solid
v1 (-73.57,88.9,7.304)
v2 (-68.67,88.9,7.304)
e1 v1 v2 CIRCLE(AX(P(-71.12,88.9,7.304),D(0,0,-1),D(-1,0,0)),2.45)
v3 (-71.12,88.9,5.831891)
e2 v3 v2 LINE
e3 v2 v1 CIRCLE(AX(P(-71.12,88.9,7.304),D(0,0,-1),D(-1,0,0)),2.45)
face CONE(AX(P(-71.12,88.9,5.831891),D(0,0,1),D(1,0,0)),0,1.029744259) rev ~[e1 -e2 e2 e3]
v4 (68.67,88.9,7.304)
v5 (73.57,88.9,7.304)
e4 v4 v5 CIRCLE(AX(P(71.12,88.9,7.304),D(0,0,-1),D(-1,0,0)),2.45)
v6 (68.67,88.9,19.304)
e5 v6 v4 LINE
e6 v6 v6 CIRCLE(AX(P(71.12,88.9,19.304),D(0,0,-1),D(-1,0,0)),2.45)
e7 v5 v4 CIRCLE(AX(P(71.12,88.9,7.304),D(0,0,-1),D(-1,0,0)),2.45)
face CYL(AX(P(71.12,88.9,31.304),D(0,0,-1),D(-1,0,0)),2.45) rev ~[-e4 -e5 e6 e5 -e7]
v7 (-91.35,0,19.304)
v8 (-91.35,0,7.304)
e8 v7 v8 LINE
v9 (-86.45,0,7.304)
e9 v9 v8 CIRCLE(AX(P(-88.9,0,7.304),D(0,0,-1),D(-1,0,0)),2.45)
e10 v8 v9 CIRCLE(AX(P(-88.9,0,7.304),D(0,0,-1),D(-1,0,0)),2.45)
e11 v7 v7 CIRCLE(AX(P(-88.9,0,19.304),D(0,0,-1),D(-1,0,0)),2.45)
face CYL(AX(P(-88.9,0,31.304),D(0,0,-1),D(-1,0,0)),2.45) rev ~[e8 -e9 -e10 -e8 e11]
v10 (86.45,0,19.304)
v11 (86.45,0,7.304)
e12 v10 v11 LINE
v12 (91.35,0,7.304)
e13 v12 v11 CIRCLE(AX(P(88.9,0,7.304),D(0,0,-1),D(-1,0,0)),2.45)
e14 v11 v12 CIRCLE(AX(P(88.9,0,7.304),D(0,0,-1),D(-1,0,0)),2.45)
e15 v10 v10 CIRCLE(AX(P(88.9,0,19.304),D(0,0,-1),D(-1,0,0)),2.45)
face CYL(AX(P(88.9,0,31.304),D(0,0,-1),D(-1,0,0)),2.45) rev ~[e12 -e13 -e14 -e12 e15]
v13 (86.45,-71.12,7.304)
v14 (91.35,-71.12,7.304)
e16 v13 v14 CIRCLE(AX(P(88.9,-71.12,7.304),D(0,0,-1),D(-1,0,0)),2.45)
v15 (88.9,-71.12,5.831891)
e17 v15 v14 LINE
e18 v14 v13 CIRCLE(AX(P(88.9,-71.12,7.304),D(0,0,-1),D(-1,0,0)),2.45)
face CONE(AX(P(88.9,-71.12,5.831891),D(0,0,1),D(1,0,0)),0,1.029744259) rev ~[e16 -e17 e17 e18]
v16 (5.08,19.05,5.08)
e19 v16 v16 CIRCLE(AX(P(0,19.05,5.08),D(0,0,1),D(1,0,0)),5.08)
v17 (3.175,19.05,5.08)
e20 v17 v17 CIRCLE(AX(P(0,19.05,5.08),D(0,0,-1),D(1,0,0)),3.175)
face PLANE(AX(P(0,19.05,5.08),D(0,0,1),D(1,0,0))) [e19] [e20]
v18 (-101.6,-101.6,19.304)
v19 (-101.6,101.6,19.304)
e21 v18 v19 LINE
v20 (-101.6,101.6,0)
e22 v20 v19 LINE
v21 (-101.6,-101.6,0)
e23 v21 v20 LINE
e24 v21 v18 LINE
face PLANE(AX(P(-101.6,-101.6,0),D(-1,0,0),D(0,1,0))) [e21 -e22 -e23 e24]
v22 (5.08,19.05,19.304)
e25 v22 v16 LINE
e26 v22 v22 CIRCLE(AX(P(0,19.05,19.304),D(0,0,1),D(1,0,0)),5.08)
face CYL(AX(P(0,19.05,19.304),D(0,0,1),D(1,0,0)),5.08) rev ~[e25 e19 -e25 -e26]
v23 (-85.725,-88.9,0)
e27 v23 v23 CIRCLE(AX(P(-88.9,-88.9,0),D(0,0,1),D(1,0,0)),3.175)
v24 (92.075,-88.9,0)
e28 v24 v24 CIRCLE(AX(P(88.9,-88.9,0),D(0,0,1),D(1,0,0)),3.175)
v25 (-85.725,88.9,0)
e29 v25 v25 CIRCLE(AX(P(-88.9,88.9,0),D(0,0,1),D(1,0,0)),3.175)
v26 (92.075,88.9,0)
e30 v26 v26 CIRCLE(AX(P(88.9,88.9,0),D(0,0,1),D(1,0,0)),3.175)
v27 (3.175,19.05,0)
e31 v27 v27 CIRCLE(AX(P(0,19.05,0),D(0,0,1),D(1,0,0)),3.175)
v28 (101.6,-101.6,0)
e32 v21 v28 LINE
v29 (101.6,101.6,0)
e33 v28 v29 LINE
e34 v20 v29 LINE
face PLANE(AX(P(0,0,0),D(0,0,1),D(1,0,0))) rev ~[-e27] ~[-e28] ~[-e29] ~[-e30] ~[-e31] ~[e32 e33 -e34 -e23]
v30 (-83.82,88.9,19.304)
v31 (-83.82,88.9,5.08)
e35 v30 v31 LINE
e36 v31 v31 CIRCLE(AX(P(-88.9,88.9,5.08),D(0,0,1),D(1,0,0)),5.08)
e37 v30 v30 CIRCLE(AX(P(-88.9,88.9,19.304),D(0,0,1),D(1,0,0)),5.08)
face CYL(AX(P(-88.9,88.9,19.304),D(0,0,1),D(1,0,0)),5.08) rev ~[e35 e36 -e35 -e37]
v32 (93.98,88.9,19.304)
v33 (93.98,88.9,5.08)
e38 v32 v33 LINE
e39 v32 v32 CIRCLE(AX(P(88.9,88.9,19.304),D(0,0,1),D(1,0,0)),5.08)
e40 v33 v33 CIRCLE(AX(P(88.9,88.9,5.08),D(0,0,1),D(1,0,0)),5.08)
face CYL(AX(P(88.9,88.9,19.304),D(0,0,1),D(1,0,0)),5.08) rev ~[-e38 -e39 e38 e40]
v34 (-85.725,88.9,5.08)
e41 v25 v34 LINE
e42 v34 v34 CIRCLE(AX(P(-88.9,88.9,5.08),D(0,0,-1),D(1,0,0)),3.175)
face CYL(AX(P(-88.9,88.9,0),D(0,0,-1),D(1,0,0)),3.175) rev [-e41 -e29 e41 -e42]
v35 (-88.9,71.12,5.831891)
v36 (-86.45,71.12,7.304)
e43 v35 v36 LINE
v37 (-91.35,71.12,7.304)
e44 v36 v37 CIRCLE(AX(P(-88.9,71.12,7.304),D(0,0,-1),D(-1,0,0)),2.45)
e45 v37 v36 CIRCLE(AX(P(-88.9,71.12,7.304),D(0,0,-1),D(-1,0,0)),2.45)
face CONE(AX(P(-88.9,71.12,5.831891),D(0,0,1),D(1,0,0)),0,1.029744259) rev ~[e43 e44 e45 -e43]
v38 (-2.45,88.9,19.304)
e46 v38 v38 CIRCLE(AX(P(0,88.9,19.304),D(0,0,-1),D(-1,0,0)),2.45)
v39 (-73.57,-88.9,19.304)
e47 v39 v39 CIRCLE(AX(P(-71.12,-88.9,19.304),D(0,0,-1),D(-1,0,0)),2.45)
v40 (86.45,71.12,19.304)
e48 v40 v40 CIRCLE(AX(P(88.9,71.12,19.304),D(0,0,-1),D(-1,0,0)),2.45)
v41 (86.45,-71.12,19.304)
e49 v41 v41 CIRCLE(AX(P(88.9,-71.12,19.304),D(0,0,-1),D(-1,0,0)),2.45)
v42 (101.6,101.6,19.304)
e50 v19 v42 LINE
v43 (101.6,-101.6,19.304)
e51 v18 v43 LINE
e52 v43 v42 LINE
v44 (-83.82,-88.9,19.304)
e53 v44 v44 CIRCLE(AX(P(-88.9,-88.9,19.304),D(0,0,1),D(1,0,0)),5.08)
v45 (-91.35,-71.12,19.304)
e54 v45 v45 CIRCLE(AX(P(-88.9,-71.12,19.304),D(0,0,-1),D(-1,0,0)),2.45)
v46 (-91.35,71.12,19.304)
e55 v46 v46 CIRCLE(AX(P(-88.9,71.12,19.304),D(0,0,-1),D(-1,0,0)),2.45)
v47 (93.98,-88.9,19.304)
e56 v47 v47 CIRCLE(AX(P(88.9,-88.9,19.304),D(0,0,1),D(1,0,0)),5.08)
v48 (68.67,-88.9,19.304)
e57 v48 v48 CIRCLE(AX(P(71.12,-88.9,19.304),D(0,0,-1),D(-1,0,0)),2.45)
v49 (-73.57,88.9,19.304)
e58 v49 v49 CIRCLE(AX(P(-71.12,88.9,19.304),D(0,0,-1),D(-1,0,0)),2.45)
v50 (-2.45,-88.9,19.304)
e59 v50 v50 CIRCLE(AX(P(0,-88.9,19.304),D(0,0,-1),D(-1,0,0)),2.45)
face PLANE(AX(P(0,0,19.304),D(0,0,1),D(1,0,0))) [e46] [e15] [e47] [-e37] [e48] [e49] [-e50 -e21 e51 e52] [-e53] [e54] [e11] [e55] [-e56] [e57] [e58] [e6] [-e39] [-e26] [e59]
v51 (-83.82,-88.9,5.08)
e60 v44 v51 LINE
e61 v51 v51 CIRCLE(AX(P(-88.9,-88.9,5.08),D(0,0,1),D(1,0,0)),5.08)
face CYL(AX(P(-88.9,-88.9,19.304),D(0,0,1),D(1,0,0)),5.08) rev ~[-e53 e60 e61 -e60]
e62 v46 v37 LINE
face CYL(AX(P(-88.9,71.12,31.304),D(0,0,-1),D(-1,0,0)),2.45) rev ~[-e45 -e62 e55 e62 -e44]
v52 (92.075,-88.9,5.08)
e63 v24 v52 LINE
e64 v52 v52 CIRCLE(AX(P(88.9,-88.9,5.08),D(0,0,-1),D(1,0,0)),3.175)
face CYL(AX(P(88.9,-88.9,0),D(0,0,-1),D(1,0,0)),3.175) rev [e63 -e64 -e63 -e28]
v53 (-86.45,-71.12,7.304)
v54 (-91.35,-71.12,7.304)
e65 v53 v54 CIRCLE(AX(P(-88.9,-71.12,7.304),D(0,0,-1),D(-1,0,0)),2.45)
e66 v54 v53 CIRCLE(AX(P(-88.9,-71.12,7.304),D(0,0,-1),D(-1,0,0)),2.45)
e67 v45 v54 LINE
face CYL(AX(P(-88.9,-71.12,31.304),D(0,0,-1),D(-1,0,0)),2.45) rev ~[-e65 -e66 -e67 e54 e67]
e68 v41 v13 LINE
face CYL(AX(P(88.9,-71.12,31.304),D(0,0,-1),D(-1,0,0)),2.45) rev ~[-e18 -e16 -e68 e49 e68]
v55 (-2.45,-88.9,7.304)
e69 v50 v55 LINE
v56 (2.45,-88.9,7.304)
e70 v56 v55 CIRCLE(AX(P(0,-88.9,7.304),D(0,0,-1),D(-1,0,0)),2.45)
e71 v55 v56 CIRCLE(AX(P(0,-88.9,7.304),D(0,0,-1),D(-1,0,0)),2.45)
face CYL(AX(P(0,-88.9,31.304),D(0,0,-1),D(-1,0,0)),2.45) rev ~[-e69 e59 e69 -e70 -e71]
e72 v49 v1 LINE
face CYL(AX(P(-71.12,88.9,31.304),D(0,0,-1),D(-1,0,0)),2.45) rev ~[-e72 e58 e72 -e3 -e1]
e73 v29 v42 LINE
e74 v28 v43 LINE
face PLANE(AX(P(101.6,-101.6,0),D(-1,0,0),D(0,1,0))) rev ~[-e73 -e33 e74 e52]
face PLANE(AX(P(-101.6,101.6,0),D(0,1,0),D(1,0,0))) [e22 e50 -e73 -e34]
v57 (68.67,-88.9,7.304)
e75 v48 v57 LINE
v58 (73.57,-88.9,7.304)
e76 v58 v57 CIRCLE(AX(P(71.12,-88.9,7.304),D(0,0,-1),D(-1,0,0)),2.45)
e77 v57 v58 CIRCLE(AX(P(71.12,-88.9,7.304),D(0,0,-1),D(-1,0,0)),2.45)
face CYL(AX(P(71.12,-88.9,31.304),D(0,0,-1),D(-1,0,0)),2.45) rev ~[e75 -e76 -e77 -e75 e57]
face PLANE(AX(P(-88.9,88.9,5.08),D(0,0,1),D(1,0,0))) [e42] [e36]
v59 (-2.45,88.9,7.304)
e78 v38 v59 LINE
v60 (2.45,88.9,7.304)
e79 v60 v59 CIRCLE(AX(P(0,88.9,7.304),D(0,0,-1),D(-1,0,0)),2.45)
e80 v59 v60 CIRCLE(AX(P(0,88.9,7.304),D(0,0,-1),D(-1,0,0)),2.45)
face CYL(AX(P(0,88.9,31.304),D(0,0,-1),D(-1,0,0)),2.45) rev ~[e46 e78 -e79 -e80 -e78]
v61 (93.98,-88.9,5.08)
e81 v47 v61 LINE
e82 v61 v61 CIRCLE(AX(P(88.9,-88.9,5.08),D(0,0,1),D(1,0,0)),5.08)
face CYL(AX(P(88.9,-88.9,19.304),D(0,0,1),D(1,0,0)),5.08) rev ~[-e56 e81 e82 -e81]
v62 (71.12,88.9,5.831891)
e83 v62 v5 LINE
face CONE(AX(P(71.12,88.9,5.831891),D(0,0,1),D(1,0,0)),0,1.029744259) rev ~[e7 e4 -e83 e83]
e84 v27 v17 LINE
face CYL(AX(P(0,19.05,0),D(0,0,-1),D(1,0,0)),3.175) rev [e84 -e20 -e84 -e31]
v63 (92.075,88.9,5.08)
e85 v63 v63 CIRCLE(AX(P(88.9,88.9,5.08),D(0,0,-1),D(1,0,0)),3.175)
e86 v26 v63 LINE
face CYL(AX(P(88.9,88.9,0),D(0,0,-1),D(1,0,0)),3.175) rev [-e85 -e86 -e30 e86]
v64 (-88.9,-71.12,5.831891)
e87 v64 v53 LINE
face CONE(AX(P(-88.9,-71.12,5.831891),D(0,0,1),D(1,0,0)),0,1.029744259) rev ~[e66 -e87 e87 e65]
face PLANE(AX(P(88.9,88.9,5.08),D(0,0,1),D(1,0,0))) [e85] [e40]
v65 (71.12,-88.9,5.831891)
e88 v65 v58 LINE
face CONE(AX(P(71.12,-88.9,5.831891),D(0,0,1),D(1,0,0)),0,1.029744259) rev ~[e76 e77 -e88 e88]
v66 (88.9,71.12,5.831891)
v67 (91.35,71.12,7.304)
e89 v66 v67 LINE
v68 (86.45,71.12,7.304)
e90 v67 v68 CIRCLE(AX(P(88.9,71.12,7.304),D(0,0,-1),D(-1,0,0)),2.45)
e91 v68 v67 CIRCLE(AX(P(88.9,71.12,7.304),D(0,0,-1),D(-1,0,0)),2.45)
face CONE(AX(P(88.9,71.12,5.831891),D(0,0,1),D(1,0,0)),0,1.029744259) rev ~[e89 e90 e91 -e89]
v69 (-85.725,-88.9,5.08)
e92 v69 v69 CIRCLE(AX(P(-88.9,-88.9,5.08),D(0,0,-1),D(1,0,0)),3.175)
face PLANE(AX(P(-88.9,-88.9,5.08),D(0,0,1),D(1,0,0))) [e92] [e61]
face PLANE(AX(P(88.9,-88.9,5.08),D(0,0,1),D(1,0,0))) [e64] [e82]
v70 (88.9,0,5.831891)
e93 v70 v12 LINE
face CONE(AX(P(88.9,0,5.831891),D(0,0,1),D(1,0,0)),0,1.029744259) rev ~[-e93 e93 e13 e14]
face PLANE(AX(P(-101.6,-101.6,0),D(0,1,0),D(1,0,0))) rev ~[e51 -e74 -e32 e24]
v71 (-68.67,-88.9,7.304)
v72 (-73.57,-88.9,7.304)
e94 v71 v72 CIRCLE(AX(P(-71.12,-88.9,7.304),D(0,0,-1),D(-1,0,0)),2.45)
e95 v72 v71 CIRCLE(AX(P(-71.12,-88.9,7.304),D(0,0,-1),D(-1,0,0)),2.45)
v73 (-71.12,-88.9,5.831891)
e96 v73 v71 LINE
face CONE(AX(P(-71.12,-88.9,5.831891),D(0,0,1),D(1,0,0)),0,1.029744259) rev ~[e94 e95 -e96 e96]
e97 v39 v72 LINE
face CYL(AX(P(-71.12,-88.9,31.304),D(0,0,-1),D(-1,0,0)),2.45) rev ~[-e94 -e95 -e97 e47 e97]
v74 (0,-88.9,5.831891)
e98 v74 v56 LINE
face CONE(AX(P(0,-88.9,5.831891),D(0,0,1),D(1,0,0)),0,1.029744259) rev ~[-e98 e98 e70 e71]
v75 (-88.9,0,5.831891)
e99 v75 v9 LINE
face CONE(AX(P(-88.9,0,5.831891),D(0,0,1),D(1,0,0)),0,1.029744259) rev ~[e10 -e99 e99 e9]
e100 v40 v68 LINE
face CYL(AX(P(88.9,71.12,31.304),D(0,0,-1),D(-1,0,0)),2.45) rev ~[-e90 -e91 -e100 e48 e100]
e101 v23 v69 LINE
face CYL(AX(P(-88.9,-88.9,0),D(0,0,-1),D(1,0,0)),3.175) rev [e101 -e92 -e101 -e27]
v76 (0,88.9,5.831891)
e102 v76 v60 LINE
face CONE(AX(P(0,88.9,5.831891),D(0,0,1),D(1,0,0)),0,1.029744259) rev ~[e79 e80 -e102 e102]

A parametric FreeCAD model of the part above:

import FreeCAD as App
import Part
import Sketcher
from FreeCAD import Vector
Q = App.Units.Quantity

doc = App.newDocument("Part")
params = doc.addObject("Spreadsheet::Sheet", "Params")
for row, (alias, value) in enumerate([
    ("sketch1_diameter", "0.25 in"),
    ("sketch1_width", "8 in"),
    ("pad1_length", "0.76 in"),
    ("sketch2_diameter", "0.4 in"),
    ("pocket1_length", "0.56 in"),
    ("hole_diameter", "4.9 mm"),
    ("hole_depth", "12 mm"),
], start=1):
    params.set(f"A{row}", alias)
    params.set(f"B{row}", "=" + value)
    params.setAlias(f"B{row}", alias)

body = doc.addObject("PartDesign::Body", "Body")

sketch1 = body.newObject("Sketcher::SketchObject", "Sketch")
sketch1.AttachmentSupport = (doc.getObject("XY_Plane"), [""])
sketch1.MapMode = "FlatFace"
sketch1.addGeometry(Part.LineSegment(Vector(-101.6, 101.6, 0), Vector(-101.6, -101.6, 0)), False)
sketch1.addGeometry(Part.LineSegment(Vector(-101.6, -101.6, 0), Vector(101.6, -101.6, 0)), False)
sketch1.addGeometry(Part.LineSegment(Vector(101.6, -101.6, 0), Vector(101.6, 101.6, 0)), False)
sketch1.addGeometry(Part.LineSegment(Vector(101.6, 101.6, 0), Vector(-101.6, 101.6, 0)), False)
sketch1.addGeometry(Part.Circle(Vector(-88.9, -88.9, 0), Vector(0, 0, 1), 3.2), False)
sketch1.addGeometry(Part.Circle(Vector(88.9, -88.9, 0), Vector(0, 0, 1), 3.2), False)
sketch1.addGeometry(Part.Circle(Vector(-88.9, 88.9, 0), Vector(0, 0, 1), 3.2), False)
sketch1.addGeometry(Part.Circle(Vector(0, 19.1, 0), Vector(0, 0, 1), 3.2), False)
sketch1.addGeometry(Part.Circle(Vector(88.9, 88.9, 0), Vector(0, 0, 1), 3.2), False)
sketch1.addConstraint(Sketcher.Constraint("Coincident", 0, 2, 1, 1))
sketch1.addConstraint(Sketcher.Constraint("Coincident", 1, 2, 2, 1))
sketch1.addConstraint(Sketcher.Constraint("Coincident", 2, 2, 3, 1))
sketch1.addConstraint(Sketcher.Constraint("Coincident", 3, 2, 0, 1))
sketch1.addConstraint(Sketcher.Constraint("Vertical", 0))
sketch1.addConstraint(Sketcher.Constraint("Horizontal", 1))
sketch1.addConstraint(Sketcher.Constraint("Vertical", 2))
sketch1.addConstraint(Sketcher.Constraint("Horizontal", 3))
sketch1.addConstraint(Sketcher.Constraint("Equal", 4, 5))
sketch1.addConstraint(Sketcher.Constraint("Equal", 5, 6))
sketch1.addConstraint(Sketcher.Constraint("Equal", 6, 7))
sketch1.addConstraint(Sketcher.Constraint("Equal", 7, 8))
sketch1.addConstraint(Sketcher.Constraint("Symmetric", 5, 3, 6, 3, -1, 1))
sketch1.addConstraint(Sketcher.Constraint("Symmetric", 4, 3, 8, 3, -1, 1))
sketch1.addConstraint(Sketcher.Constraint("Symmetric", 0, 2, 2, 2, -1, 1))
sketch1.addConstraint(Sketcher.Constraint("Symmetric", 4, 3, 5, 3, -2))
sketch1.addConstraint(Sketcher.Constraint("PointOnObject", 7, 3, -2))
sketch1.addConstraint(Sketcher.Constraint("Equal", 3, 0))
sketch1.addConstraint(Sketcher.Constraint("Diameter", 4, Q("0.25 in")))
sketch1.addConstraint(Sketcher.Constraint("DistanceX", 1, 1, 1, 2, Q("8 in")))
sketch1.addConstraint(Sketcher.Constraint("DistanceX", 4, 3, 5, 3, Q("7 in")))
sketch1.addConstraint(Sketcher.Constraint("DistanceY", 4, 3, 6, 3, Q("7 in")))
sketch1.addConstraint(Sketcher.Constraint("DistanceY", -1, 1, 7, 3, Q("0.75 in")))
sketch1.setExpression("Constraints[18]", "Params.sketch1_diameter")
sketch1.setExpression("Constraints[19]", "Params.sketch1_width")
pad1 = body.newObject("PartDesign::Pad", "Pad")
pad1.Profile = sketch1
pad1.setExpression("Length", "Params.pad1_length")

sketch2 = body.newObject("Sketcher::SketchObject", "Sketch001")
sketch2.AttachmentSupport = (doc.getObject("XY_Plane"), [""])
sketch2.MapMode = "FlatFace"
sketch2.AttachmentOffset = App.Placement(Vector(0, 0, 0.76 * 25.4), App.Rotation())
sketch2.addGeometry(Part.Circle(Vector(-89, 89, 0), Vector(0, 0, 1), 5), False)
sketch2.addGeometry(Part.Circle(Vector(0, 19, 0), Vector(0, 0, 1), 5), False)
sketch2.addGeometry(Part.Circle(Vector(89, 89, 0), Vector(0, 0, 1), 5), False)
sketch2.addGeometry(Part.Circle(Vector(-89, -89, 0), Vector(0, 0, 1), 5), False)
sketch2.addGeometry(Part.Circle(Vector(89, -89, 0), Vector(0, 0, 1), 5), False)
sketch2.addConstraint(Sketcher.Constraint("Equal", 0, 1))
sketch2.addConstraint(Sketcher.Constraint("Equal", 1, 2))
sketch2.addConstraint(Sketcher.Constraint("Equal", 2, 3))
sketch2.addConstraint(Sketcher.Constraint("Equal", 3, 4))
sketch2.addConstraint(Sketcher.Constraint("Symmetric", 2, 3, 3, 3, -1, 1))
sketch2.addConstraint(Sketcher.Constraint("Symmetric", 0, 3, 4, 3, -1, 1))
sketch2.addConstraint(Sketcher.Constraint("Symmetric", 0, 3, 2, 3, -2))
sketch2.addConstraint(Sketcher.Constraint("PointOnObject", 1, 3, -2))
sketch2.addConstraint(Sketcher.Constraint("Diameter", 0, Q("0.4 in")))
sketch2.addConstraint(Sketcher.Constraint("DistanceX", 0, 3, 2, 3, Q("7 in")))
sketch2.addConstraint(Sketcher.Constraint("DistanceY", 3, 3, 0, 3, Q("7 in")))
sketch2.addConstraint(Sketcher.Constraint("DistanceY", -1, 1, 1, 3, Q("0.75 in")))
sketch2.setExpression("Constraints[8]", "Params.sketch2_diameter")
pocket1 = body.newObject("PartDesign::Pocket", "Pocket")
pocket1.Profile = sketch2
pocket1.setExpression("Length", "Params.pocket1_length")

sketch3 = body.newObject("Sketcher::SketchObject", "Sketch002")
sketch3.AttachmentSupport = (doc.getObject("XY_Plane"), [""])
sketch3.MapMode = "FlatFace"
sketch3.AttachmentOffset = App.Placement(Vector(0, 0, 0.76 * 25.4), App.Rotation())
sketch3.addGeometry(Part.Circle(Vector(0, -88.9, 0), Vector(0, 0, 1), 2.5), False)
sketch3.addGeometry(Part.Circle(Vector(88.9, 0, 0), Vector(0, 0, 1), 2.5), False)
sketch3.addGeometry(Part.Circle(Vector(0, 88.9, 0), Vector(0, 0, 1), 2.5), False)
sketch3.addGeometry(Part.Circle(Vector(-88.9, 0, 0), Vector(0, 0, 1), 2.5), False)
sketch3.addGeometry(Part.Circle(Vector(-88.9, -71.1, 0), Vector(0, 0, 1), 2.5), False)
sketch3.addGeometry(Part.Circle(Vector(-71.1, -88.9, 0), Vector(0, 0, 1), 2.5), False)
sketch3.addGeometry(Part.Circle(Vector(-88.9, 71.1, 0), Vector(0, 0, 1), 2.5), False)
sketch3.addGeometry(Part.Circle(Vector(-71.1, 88.9, 0), Vector(0, 0, 1), 2.5), False)
sketch3.addGeometry(Part.Circle(Vector(71.1, 88.9, 0), Vector(0, 0, 1), 2.5), False)
sketch3.addGeometry(Part.Circle(Vector(88.9, 71.1, 0), Vector(0, 0, 1), 2.5), False)
sketch3.addGeometry(Part.Circle(Vector(88.9, -71.1, 0), Vector(0, 0, 1), 2.5), False)
sketch3.addGeometry(Part.Circle(Vector(71.1, -88.9, 0), Vector(0, 0, 1), 2.5), False)
sketch3.addConstraint(Sketcher.Constraint("Equal", 0, 1))
sketch3.addConstraint(Sketcher.Constraint("Equal", 1, 2))
sketch3.addConstraint(Sketcher.Constraint("Equal", 2, 3))
sketch3.addConstraint(Sketcher.Constraint("Equal", 3, 4))
sketch3.addConstraint(Sketcher.Constraint("Equal", 4, 5))
sketch3.addConstraint(Sketcher.Constraint("Equal", 5, 6))
sketch3.addConstraint(Sketcher.Constraint("Equal", 6, 7))
sketch3.addConstraint(Sketcher.Constraint("Equal", 7, 8))
sketch3.addConstraint(Sketcher.Constraint("Equal", 8, 9))
sketch3.addConstraint(Sketcher.Constraint("Equal", 9, 10))
sketch3.addConstraint(Sketcher.Constraint("Equal", 10, 11))
sketch3.addConstraint(Sketcher.Constraint("Symmetric", 0, 3, 2, 3, -1, 1))
sketch3.addConstraint(Sketcher.Constraint("Symmetric", 1, 3, 3, 3, -1, 1))
sketch3.addConstraint(Sketcher.Constraint("Symmetric", 5, 3, 8, 3, -1, 1))
sketch3.addConstraint(Sketcher.Constraint("Symmetric", 4, 3, 9, 3, -1, 1))
sketch3.addConstraint(Sketcher.Constraint("Symmetric", 6, 3, 10, 3, -1, 1))
sketch3.addConstraint(Sketcher.Constraint("Symmetric", 7, 3, 11, 3, -1, 1))
sketch3.addConstraint(Sketcher.Constraint("Symmetric", 7, 3, 8, 3, -2))
sketch3.addConstraint(Sketcher.Constraint("Symmetric", 6, 3, 9, 3, -2))
sketch3.addConstraint(Sketcher.Constraint("PointOnObject", 0, 3, -2))
sketch3.addConstraint(Sketcher.Constraint("PointOnObject", 1, 3, -1))
sketch3.addConstraint(Sketcher.Constraint("Horizontal", 0, 3, 5, 3))
sketch3.addConstraint(Sketcher.Constraint("Vertical", 3, 3, 4, 3))
sketch3.addConstraint(Sketcher.Constraint("DistanceY", 0, 3, 2, 3, Q("7 in")))
sketch3.addConstraint(Sketcher.Constraint("DistanceX", 3, 3, 1, 3, Q("7 in")))
sketch3.addConstraint(Sketcher.Constraint("DistanceY", 4, 3, -1, 1, Q("2.8 in")))
sketch3.addConstraint(Sketcher.Constraint("DistanceX", 5, 3, -1, 1, Q("2.8 in")))
sketch3.addConstraint(Sketcher.Constraint("Diameter", 0, 4.9))
doc.recompute()
hole = body.newObject("PartDesign::Hole", "Hole")
hole.Profile = sketch3
hole.ThreadType = "None"
hole.setExpression("Diameter", "Params.hole_diameter")
hole.DepthType = "Dimension"
hole.setExpression("Depth", "Params.hole_depth")
hole.DrillPoint = "Angled"
hole.DrillPointAngle = 118

doc.recompute()
